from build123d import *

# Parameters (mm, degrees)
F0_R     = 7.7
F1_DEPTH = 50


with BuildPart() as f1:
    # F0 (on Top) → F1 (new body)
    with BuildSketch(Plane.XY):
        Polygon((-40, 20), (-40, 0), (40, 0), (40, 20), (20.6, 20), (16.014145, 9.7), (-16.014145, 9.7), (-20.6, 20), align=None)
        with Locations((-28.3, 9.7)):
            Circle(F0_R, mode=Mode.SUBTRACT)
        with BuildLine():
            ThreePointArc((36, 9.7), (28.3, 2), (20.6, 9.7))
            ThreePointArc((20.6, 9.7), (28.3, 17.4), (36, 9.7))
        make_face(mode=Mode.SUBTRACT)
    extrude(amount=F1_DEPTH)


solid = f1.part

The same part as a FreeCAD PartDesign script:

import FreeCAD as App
import Part
import Sketcher

V = App.Vector
Q = App.Units.Quantity

doc = App.newDocument("Part")
body = doc.addObject("PartDesign::Body", "Body")

# Sketch on XY plane
sketch1 = doc.addObject("Sketcher::SketchObject", "Sketch")
body.addObject(sketch1)
sketch1.AttachmentSupport = (doc.XY_Plane, [""])
sketch1.MapMode = "FlatFace"
sketch1.addGeometry(Part.LineSegment(V(-40, 20, 0), V(-40, 0, 0)), False)
sketch1.addGeometry(Part.LineSegment(V(-40, 0, 0), V(40, 0, 0)), False)
sketch1.addGeometry(Part.LineSegment(V(40, 0, 0), V(40, 20, 0)), False)
sketch1.addGeometry(Part.LineSegment(V(40, 20, 0), V(20.6, 20, 0)), False)
sketch1.addGeometry(Part.LineSegment(V(20.6, 20, 0), V(16.014145, 9.7, 0)), False)
sketch1.addGeometry(Part.LineSegment(V(16.014145, 9.7, 0), V(-16.014145, 9.7, 0)), False)
sketch1.addGeometry(Part.LineSegment(V(-16.014145, 9.7, 0), V(-20.6, 20, 0)), False)
sketch1.addGeometry(Part.LineSegment(V(-20.6, 20, 0), V(-40, 20, 0)), False)
sketch1.addGeometry(Part.Circle(V(-28.3, 9.7, 0), V(0, 0, 1), 7.7), False)
sketch1.addGeometry(Part.Circle(V(28.3, 9.7, 0), V(0, 0, 1), 7.7), False)
sketch1.addConstraint(Sketcher.Constraint("Coincident", 0, 2, 1, 1))
sketch1.addConstraint(Sketcher.Constraint("Coincident", 1, 2, 2, 1))
sketch1.addConstraint(Sketcher.Constraint("Coincident", 2, 2, 3, 1))
sketch1.addConstraint(Sketcher.Constraint("Coincident", 3, 2, 4, 1))
sketch1.addConstraint(Sketcher.Constraint("Coincident", 4, 2, 5, 1))
sketch1.addConstraint(Sketcher.Constraint("Coincident", 5, 2, 6, 1))
sketch1.addConstraint(Sketcher.Constraint("Coincident", 6, 2, 7, 1))
sketch1.addConstraint(Sketcher.Constraint("Coincident", 7, 2, 0, 1))
sketch1.addConstraint(Sketcher.Constraint("Vertical", 0))
sketch1.addConstraint(Sketcher.Constraint("Horizontal", 1))
sketch1.addConstraint(Sketcher.Constraint("Vertical", 2))
sketch1.addConstraint(Sketcher.Constraint("Horizontal", 3))
sketch1.addConstraint(Sketcher.Constraint("Horizontal", 5))
sketch1.addConstraint(Sketcher.Constraint("Horizontal", 7))
sketch1.addConstraint(Sketcher.Constraint("Equal", 8, 9))
sketch1.addConstraint(Sketcher.Constraint("Symmetric", 0, 2, 1, 2, -1, 1))
sketch1.addConstraint(Sketcher.Constraint("Symmetric", 8, 3, 9, 3, -2))
sketch1.addConstraint(Sketcher.Constraint("Symmetric", 3, 2, 6, 2, -2))
sketch1.addConstraint(Sketcher.Constraint("Horizontal", 9, 3, 4, 2))
sketch1.addConstraint(Sketcher.Constraint("Equal", 4, 6))
sketch1.addConstraint(Sketcher.Constraint("Diameter", 8, 15.4))
sketch1.addConstraint(Sketcher.Constraint("DistanceX", 1, 1, 1, 2, 80.0))
sketch1.addConstraint(Sketcher.Constraint("DistanceY", 0, 2, 0, 1, 20.0))
sketch1.addConstraint(Sketcher.Constraint("Angle", 4, Q("-113.999998 deg")))
sketch1.addConstraint(Sketcher.Constraint("DistanceX", 3, 2, 3, 1, 19.4))
sketch1.addConstraint(Sketcher.Constraint("DistanceX", 8, 3, -1, 1, 28.3))
sketch1.addConstraint(Sketcher.Constraint("DistanceY", -1, 1, 8, 3, 9.7))
pad1 = doc.addObject("PartDesign::Pad", "Pad")
body.addObject(pad1)
pad1.Profile = sketch1
pad1.Length = 50

doc.recompute()
